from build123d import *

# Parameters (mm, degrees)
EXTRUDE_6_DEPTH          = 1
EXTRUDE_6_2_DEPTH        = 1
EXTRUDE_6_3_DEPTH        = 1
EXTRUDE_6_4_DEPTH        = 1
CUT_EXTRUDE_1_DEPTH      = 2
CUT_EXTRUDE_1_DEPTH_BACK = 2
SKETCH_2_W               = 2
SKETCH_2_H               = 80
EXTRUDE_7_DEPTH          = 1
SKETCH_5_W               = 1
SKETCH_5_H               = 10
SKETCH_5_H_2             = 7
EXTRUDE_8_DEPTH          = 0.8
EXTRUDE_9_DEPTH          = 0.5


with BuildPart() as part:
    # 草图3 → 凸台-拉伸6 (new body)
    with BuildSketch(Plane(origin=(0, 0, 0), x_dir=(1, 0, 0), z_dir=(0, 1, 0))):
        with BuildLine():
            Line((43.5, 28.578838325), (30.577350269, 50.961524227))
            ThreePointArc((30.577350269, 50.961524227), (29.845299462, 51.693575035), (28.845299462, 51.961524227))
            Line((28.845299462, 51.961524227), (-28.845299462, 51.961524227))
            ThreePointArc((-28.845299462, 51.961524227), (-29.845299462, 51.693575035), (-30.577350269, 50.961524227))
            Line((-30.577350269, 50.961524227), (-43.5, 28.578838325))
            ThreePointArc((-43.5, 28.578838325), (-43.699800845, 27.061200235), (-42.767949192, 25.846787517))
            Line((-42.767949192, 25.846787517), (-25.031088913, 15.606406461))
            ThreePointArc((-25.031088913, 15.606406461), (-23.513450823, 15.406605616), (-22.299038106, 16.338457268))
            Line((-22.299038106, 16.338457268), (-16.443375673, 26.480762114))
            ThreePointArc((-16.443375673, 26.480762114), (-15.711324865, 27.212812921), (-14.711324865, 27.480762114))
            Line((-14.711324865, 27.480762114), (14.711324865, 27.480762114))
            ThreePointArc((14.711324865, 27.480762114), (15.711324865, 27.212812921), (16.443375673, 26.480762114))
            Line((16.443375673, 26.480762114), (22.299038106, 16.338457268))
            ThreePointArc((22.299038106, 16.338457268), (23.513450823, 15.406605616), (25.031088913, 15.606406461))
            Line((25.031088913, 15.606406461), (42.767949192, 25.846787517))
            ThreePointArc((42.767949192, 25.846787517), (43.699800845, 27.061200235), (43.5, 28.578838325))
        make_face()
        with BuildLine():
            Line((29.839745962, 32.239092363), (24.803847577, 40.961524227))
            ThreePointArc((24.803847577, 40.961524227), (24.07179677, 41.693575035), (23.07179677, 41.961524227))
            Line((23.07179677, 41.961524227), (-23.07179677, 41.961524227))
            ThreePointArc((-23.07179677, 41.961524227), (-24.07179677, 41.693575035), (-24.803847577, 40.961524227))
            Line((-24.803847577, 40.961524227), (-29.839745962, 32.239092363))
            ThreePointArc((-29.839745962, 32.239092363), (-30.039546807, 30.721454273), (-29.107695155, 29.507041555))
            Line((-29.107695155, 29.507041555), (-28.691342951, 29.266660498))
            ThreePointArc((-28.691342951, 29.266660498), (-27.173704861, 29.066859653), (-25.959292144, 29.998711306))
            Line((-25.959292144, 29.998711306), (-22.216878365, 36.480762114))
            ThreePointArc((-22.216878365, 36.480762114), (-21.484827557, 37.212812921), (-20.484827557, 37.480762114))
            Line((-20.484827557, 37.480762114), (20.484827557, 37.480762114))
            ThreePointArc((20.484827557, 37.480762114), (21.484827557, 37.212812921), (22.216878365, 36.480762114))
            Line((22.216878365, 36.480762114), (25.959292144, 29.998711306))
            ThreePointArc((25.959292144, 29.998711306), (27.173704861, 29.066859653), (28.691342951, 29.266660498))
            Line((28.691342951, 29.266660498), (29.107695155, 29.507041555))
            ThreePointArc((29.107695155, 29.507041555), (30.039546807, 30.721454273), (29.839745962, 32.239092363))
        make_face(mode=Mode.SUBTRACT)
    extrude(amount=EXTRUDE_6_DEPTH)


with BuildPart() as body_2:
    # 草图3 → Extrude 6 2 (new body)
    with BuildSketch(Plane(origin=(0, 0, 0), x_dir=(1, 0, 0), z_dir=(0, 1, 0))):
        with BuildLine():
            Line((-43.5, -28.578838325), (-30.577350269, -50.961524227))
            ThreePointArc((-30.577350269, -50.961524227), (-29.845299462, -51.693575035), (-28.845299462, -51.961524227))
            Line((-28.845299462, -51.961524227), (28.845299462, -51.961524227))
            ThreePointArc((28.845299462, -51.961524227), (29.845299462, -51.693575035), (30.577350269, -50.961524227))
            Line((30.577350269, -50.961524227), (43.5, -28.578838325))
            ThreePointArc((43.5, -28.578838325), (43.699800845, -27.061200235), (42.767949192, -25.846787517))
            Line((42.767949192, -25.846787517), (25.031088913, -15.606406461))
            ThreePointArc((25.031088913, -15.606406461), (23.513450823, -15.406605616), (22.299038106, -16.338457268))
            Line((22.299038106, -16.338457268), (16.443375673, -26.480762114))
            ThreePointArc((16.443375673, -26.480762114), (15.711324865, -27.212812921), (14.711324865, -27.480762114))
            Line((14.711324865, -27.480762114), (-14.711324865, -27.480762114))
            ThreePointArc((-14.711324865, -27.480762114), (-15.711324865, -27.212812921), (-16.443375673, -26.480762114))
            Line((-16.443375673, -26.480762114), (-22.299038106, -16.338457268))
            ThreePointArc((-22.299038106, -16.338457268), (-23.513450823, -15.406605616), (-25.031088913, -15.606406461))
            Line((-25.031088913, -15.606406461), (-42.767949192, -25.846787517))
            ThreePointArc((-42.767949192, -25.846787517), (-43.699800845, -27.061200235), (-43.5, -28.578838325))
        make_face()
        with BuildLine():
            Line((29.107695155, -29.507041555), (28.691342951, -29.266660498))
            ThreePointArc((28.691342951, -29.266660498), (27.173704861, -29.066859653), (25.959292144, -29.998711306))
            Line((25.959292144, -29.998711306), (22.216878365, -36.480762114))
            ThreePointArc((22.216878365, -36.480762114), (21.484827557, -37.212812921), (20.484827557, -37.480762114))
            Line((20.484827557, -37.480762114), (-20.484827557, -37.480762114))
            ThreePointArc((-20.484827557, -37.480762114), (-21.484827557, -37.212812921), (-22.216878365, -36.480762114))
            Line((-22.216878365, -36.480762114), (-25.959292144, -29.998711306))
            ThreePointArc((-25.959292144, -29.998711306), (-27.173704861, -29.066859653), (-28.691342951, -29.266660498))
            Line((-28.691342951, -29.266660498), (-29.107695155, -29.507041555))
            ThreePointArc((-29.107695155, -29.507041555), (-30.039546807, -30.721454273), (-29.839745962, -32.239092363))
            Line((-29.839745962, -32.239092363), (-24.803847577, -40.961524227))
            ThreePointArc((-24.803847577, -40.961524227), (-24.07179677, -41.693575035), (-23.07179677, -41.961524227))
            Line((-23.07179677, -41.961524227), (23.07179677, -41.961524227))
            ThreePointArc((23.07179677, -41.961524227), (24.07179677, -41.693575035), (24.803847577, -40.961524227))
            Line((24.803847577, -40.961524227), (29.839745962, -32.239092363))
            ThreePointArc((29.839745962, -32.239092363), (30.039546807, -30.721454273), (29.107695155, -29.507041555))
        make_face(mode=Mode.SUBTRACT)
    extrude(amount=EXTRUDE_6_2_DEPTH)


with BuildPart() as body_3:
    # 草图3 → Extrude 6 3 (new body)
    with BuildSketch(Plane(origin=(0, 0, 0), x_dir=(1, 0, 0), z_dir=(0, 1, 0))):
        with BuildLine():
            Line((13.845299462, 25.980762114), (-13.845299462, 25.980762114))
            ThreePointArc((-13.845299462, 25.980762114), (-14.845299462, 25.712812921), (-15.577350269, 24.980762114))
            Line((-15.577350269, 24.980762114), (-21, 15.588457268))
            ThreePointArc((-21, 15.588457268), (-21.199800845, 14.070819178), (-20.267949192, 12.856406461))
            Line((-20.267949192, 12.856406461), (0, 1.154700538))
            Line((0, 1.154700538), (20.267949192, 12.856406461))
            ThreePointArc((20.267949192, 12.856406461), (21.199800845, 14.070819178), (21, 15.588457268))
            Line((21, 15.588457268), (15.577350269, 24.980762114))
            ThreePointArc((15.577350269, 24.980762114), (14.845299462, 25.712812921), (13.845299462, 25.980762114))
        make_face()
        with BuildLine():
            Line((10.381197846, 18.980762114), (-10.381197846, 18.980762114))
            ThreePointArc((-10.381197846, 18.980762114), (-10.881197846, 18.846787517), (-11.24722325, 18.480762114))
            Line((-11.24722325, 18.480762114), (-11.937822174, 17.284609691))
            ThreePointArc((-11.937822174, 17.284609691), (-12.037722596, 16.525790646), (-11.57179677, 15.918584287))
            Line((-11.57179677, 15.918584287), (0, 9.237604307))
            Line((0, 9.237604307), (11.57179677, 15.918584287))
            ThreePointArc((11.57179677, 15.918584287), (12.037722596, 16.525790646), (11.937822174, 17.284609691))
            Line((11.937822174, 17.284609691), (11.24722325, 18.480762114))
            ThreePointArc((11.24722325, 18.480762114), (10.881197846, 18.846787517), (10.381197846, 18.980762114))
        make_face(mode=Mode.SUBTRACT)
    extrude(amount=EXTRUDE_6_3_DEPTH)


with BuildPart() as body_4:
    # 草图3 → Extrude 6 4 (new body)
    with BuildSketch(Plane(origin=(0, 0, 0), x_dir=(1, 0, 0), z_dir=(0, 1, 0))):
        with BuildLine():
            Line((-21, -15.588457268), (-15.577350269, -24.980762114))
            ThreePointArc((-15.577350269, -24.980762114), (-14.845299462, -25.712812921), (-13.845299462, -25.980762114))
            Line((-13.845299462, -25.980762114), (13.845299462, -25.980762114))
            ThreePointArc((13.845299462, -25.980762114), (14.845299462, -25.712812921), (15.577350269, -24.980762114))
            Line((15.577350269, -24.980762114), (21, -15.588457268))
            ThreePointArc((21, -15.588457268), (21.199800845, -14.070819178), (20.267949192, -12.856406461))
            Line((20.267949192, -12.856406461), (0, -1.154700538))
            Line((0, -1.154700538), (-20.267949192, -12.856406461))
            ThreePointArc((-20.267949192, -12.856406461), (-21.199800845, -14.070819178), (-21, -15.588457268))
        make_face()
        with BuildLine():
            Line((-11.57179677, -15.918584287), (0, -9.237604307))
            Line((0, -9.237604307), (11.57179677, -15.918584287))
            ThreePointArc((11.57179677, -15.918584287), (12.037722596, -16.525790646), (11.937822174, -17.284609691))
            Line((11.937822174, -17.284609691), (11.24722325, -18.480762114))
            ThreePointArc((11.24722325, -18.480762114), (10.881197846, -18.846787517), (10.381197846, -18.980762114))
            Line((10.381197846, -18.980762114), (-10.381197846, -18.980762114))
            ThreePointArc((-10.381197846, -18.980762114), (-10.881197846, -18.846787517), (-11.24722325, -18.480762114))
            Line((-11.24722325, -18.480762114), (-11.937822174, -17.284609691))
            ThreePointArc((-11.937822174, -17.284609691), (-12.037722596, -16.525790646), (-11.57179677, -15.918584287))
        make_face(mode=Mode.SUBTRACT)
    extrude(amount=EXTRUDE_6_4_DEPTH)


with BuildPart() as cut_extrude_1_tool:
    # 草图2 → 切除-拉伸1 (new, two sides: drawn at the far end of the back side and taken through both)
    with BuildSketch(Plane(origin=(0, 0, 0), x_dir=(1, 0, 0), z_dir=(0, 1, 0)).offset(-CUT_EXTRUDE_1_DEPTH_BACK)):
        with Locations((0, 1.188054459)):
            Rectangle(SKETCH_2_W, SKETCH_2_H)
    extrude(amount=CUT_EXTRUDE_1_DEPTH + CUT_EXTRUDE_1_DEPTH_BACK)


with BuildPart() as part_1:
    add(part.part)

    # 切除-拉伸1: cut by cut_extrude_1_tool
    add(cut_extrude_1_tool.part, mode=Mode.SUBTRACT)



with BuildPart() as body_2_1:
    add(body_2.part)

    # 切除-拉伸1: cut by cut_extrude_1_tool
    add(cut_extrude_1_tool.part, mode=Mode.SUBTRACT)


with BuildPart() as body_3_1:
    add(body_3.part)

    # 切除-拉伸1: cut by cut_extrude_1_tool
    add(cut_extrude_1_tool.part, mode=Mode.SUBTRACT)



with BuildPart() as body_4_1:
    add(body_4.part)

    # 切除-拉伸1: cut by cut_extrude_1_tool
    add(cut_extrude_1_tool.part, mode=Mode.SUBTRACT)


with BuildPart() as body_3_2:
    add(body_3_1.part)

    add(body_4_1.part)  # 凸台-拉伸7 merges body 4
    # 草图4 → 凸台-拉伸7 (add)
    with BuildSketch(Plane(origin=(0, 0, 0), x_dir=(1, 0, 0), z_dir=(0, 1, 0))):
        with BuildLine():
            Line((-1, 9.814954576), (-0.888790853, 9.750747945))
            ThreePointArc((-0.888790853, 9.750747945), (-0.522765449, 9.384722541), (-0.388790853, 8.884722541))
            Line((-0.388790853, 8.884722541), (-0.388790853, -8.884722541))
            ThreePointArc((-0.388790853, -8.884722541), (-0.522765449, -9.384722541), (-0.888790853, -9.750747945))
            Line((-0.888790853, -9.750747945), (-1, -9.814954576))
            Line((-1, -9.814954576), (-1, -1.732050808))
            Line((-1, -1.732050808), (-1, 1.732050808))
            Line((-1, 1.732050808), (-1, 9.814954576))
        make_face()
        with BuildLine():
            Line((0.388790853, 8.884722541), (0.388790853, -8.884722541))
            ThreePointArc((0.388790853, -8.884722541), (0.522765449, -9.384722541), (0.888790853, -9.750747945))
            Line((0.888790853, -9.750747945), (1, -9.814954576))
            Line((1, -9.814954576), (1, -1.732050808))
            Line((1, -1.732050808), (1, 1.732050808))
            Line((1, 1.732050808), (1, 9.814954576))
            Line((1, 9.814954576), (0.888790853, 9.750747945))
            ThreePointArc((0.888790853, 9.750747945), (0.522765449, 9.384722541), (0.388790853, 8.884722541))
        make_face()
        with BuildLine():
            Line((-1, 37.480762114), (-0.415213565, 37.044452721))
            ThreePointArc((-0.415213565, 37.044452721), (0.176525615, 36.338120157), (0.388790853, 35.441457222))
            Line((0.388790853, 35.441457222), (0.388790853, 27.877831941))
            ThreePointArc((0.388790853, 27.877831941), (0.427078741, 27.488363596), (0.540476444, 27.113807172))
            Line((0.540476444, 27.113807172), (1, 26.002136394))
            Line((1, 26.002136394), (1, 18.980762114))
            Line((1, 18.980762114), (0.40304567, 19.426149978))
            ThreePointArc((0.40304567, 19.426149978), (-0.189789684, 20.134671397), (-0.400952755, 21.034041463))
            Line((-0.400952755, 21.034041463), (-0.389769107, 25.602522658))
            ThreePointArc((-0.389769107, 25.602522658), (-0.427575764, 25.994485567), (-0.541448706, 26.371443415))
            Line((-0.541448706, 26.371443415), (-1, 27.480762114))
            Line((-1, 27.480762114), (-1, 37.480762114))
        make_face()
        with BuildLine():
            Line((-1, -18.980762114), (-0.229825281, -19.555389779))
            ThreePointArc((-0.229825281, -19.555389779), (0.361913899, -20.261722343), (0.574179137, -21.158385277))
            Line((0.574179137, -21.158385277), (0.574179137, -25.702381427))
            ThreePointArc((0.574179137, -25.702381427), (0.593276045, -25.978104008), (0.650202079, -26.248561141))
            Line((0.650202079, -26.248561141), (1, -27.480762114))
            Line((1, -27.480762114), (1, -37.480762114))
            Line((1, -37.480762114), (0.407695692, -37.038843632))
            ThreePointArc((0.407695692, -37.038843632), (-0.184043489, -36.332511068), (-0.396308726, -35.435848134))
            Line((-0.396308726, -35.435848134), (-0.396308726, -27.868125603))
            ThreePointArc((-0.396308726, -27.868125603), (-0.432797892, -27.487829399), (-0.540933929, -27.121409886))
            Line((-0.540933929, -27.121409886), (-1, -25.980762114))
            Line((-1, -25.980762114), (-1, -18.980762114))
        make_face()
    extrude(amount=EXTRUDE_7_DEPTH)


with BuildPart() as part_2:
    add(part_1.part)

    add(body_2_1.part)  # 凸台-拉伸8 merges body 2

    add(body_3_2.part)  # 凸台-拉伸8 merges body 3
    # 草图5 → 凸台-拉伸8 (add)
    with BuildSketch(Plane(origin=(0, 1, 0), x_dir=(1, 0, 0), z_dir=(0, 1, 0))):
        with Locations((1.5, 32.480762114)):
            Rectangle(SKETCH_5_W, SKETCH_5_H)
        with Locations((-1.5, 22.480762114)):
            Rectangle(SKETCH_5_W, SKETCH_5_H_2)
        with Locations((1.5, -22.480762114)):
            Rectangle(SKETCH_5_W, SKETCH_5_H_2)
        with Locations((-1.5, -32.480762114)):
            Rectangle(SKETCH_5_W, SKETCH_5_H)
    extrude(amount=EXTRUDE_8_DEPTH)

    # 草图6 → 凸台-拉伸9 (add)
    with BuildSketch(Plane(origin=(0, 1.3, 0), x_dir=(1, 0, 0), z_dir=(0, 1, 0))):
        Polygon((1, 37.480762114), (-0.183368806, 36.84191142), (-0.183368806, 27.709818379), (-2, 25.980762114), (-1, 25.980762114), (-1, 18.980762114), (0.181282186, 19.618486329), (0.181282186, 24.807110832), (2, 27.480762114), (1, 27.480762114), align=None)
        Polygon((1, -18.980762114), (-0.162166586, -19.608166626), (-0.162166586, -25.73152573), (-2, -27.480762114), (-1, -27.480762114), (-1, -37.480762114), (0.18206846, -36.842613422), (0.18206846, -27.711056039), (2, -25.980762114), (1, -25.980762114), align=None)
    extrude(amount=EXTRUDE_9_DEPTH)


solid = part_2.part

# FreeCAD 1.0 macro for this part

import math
import FreeCAD as App
import Part
import Sketcher

V = App.Vector
Q = App.Units.Quantity

doc = App.newDocument("Part")
body = doc.addObject("PartDesign::Body", "Body")

sketch1 = body.newObject("Sketcher::SketchObject", "Sketch")
sketch1.AttachmentSupport = (doc.getObject("XZ_Plane"), [""])
sketch1.MapMode = "FlatFace"
sketch1.addGeometry([
    Part.LineSegment(V(43.5, -28.58, 0), V(30.58, -50.96, 0)),
    Part.ArcOfCircle(Part.Circle(V(28.85, -49.96, 0), V(0, 0, 1), 2), math.radians(-90), math.radians(-30)),
    Part.LineSegment(V(28.85, -51.96, 0), V(-28.85, -51.96, 0)),
    Part.ArcOfCircle(Part.Circle(V(-28.85, -49.96, 0), V(0, 0, 1), 2), math.radians(-150), math.radians(-90)),
    Part.LineSegment(V(-30.58, -50.96, 0), V(-43.5, -28.58, 0)),
    Part.ArcOfCircle(Part.Circle(V(-41.77, -27.58, 0), V(0, 0, 1), 2), math.radians(120), math.radians(210)),
    Part.LineSegment(V(-42.77, -25.85, 0), V(-25.03, -15.61, 0)),
    Part.ArcOfCircle(Part.Circle(V(-24.03, -17.34, 0), V(0, 0, 1), 2), math.radians(30), math.radians(120)),
    Part.LineSegment(V(-22.3, -16.34, 0), V(-16.44, -26.48, 0)),
    Part.ArcOfCircle(Part.Circle(V(-14.71, -25.48, 0), V(0, 0, 1), 2), math.radians(-150), math.radians(-90)),
    Part.LineSegment(V(-14.71, -27.48, 0), V(14.71, -27.48, 0)),
    Part.ArcOfCircle(Part.Circle(V(14.71, -25.48, 0), V(0, 0, 1), 2), math.radians(-90), math.radians(-30)),
    Part.LineSegment(V(16.44, -26.48, 0), V(22.3, -16.34, 0)),
    Part.ArcOfCircle(Part.Circle(V(24.03, -17.34, 0), V(0, 0, 1), 2), math.radians(60), math.radians(150)),
    Part.LineSegment(V(25.03, -15.61, 0), V(42.77, -25.85, 0)),
    Part.ArcOfCircle(Part.Circle(V(41.77, -27.58, 0), V(0, 0, 1), 2), math.radians(-30), math.radians(60)),
    Part.LineSegment(V(24.8, -40.96, 0), V(29.84, -32.24, 0)),
    Part.ArcOfCircle(Part.Circle(V(28.11, -31.24, 0), V(0, 0, 1), 2), math.radians(-30), math.radians(60)),
    Part.LineSegment(V(29.11, -29.51, 0), V(28.69, -29.27, 0)),
    Part.ArcOfCircle(Part.Circle(V(27.69, -31, 0), V(0, 0, 1), 2), math.radians(60), math.radians(150)),
    Part.LineSegment(V(25.96, -30, 0), V(22.22, -36.48, 0)),
    Part.ArcOfCircle(Part.Circle(V(20.48, -35.48, 0), V(0, 0, 1), 2), math.radians(-90), math.radians(-30)),
    Part.LineSegment(V(20.48, -37.48, 0), V(-20.48, -37.48, 0)),
    Part.ArcOfCircle(Part.Circle(V(-20.48, -35.48, 0), V(0, 0, 1), 2), math.radians(-150), math.radians(-90)),
    Part.LineSegment(V(-22.22, -36.48, 0), V(-25.96, -30, 0)),
    Part.ArcOfCircle(Part.Circle(V(-27.69, -31, 0), V(0, 0, 1), 2), math.radians(30), math.radians(120)),
    Part.LineSegment(V(-28.69, -29.27, 0), V(-29.11, -29.51, 0)),
    Part.ArcOfCircle(Part.Circle(V(-28.11, -31.24, 0), V(0, 0, 1), 2), math.radians(120), math.radians(210)),
    Part.LineSegment(V(-29.84, -32.24, 0), V(-24.8, -40.96, 0)),
    Part.ArcOfCircle(Part.Circle(V(-23.07, -39.96, 0), V(0, 0, 1), 2), math.radians(-150), math.radians(-90)),
    Part.LineSegment(V(-23.07, -41.96, 0), V(23.07, -41.96, 0)),
    Part.ArcOfCircle(Part.Circle(V(23.07, -39.96, 0), V(0, 0, 1), 2), math.radians(-90), math.radians(-30)),
], False)
sketch1.addConstraint([
    Sketcher.Constraint("Tangent", 0, 2, 1, 2),
    Sketcher.Constraint("Tangent", 1, 1, 2, 1),
    Sketcher.Constraint("Tangent", 2, 2, 3, 2),
    Sketcher.Constraint("Tangent", 3, 1, 4, 1),
    Sketcher.Constraint("Tangent", 4, 2, 5, 2),
    Sketcher.Constraint("Tangent", 5, 1, 6, 1),
    Sketcher.Constraint("Tangent", 6, 2, 7, 2),
    Sketcher.Constraint("Tangent", 7, 1, 8, 1),
    Sketcher.Constraint("Tangent", 8, 2, 9, 1),
    Sketcher.Constraint("Tangent", 9, 2, 10, 1),
    Sketcher.Constraint("Tangent", 10, 2, 11, 1),
    Sketcher.Constraint("Tangent", 11, 2, 12, 1),
    Sketcher.Constraint("Tangent", 12, 2, 13, 2),
    Sketcher.Constraint("Tangent", 13, 1, 14, 1),
    Sketcher.Constraint("Tangent", 14, 2, 15, 2),
    Sketcher.Constraint("Tangent", 15, 1, 0, 1),
    Sketcher.Constraint("Tangent", 16, 2, 17, 1),
    Sketcher.Constraint("Tangent", 17, 2, 18, 1),
    Sketcher.Constraint("Tangent", 18, 2, 19, 1),
    Sketcher.Constraint("Tangent", 19, 2, 20, 1),
    Sketcher.Constraint("Tangent", 20, 2, 21, 2),
    Sketcher.Constraint("Tangent", 21, 1, 22, 1),
    Sketcher.Constraint("Tangent", 22, 2, 23, 2),
    Sketcher.Constraint("Tangent", 23, 1, 24, 1),
    Sketcher.Constraint("Tangent", 24, 2, 25, 1),
    Sketcher.Constraint("Tangent", 25, 2, 26, 1),
    Sketcher.Constraint("Tangent", 26, 2, 27, 1),
    Sketcher.Constraint("Tangent", 27, 2, 28, 1),
    Sketcher.Constraint("Tangent", 28, 2, 29, 1),
    Sketcher.Constraint("Tangent", 29, 2, 30, 1),
    Sketcher.Constraint("Tangent", 30, 2, 31, 1),
    Sketcher.Constraint("Tangent", 31, 2, 16, 1),
    Sketcher.Constraint("Horizontal", 2),
    Sketcher.Constraint("Horizontal", 10),
    Sketcher.Constraint("Horizontal", 22),
    Sketcher.Constraint("Horizontal", 30),
    Sketcher.Constraint("Equal", 1, 3),
    Sketcher.Constraint("Equal", 3, 5),
    Sketcher.Constraint("Equal", 5, 7),
    Sketcher.Constraint("Equal", 7, 9),
    Sketcher.Constraint("Equal", 9, 11),
    Sketcher.Constraint("Equal", 11, 13),
    Sketcher.Constraint("Equal", 13, 15),
    Sketcher.Constraint("Equal", 15, 17),
    Sketcher.Constraint("Equal", 17, 19),
    Sketcher.Constraint("Equal", 19, 21),
    Sketcher.Constraint("Equal", 21, 23),
    Sketcher.Constraint("Equal", 23, 25),
    Sketcher.Constraint("Equal", 25, 27),
    Sketcher.Constraint("Equal", 27, 29),
    Sketcher.Constraint("Equal", 29, 31),
    Sketcher.Constraint("Symmetric", 7, 3, 13, 3, -2),
    Sketcher.Constraint("Symmetric", 5, 3, 15, 3, -2),
    Sketcher.Constraint("Symmetric", 19, 3, 25, 3, -2),
    Sketcher.Constraint("Symmetric", 17, 3, 27, 3, -2),
    Sketcher.Constraint("Perpendicular", 4, 6),
    Sketcher.Constraint("Perpendicular", 6, 8),
    Sketcher.Constraint("Parallel", 0, 12),
    Sketcher.Constraint("Perpendicular", 12, 14),
    Sketcher.Constraint("Perpendicular", 14, 16),
    Sketcher.Constraint("Perpendicular", 16, 18),
    Sketcher.Constraint("Perpendicular", 18, 20),
    Sketcher.Constraint("Parallel", 8, 24),
    Sketcher.Constraint("Perpendicular", 26, 28),
    Sketcher.Constraint("Radius", 1, 2.0),
    Sketcher.Constraint("Angle", 0, Q("-120 deg")),
    Sketcher.Constraint("DistanceY", 21, 3, 11, 3, 10.0),
    Sketcher.Constraint("DistanceY", 3, 3, 29, 3, 10.0),
    Sketcher.Constraint("DistanceX", 4, 2, -1, 1, 43.5),
    Sketcher.Constraint("DistanceX", 2, 2, 2, 1, 57.690599),
    Sketcher.Constraint("DistanceX", 10, 1, 10, 2, 29.42265),
    Sketcher.Constraint("DistanceX", 27, 3, 29, 3, 5.035898),
    Sketcher.Constraint("DistanceY", 21, 3, 18, 2, 6.214102),
    Sketcher.Constraint("DistanceX", 22, 2, 22, 1, 40.969655),
    Sketcher.Constraint("DistanceX", 30, 1, 30, 2, 46.143594),
    Sketcher.Constraint("DistanceY", 5, 3, -1, 1, 27.578838),
])
pad1 = body.newObject("PartDesign::Pad", "Pad")
pad1.Profile = sketch1
pad1.Length = 1
pad1.Reversed = True
body2 = doc.addObject("PartDesign::Body", "Body001")

sketch2 = body2.newObject("Sketcher::SketchObject", "Sketch001")
sketch2.AttachmentSupport = (doc.getObject("XZ_Plane001"), [""])
sketch2.MapMode = "FlatFace"
sketch2.addGeometry([
    Part.LineSegment(V(-43.5, 28.58, 0), V(-30.58, 50.96, 0)),
    Part.ArcOfCircle(Part.Circle(V(-28.85, 49.96, 0), V(0, 0, 1), 2), math.radians(90), math.radians(150)),
    Part.LineSegment(V(-28.85, 51.96, 0), V(28.85, 51.96, 0)),
    Part.ArcOfCircle(Part.Circle(V(28.85, 49.96, 0), V(0, 0, 1), 2), math.radians(30), math.radians(90)),
    Part.LineSegment(V(30.58, 50.96, 0), V(43.5, 28.58, 0)),
    Part.ArcOfCircle(Part.Circle(V(41.77, 27.58, 0), V(0, 0, 1), 2), math.radians(-60), math.radians(30)),
    Part.LineSegment(V(42.77, 25.85, 0), V(25.03, 15.61, 0)),
    Part.ArcOfCircle(Part.Circle(V(24.03, 17.34, 0), V(0, 0, 1), 2), math.radians(-150), math.radians(-60)),
    Part.LineSegment(V(22.3, 16.34, 0), V(16.44, 26.48, 0)),
    Part.ArcOfCircle(Part.Circle(V(14.71, 25.48, 0), V(0, 0, 1), 2), math.radians(30), math.radians(90)),
    Part.LineSegment(V(14.71, 27.48, 0), V(-14.71, 27.48, 0)),
    Part.ArcOfCircle(Part.Circle(V(-14.71, 25.48, 0), V(0, 0, 1), 2), math.radians(90), math.radians(150)),
    Part.LineSegment(V(-16.44, 26.48, 0), V(-22.3, 16.34, 0)),
    Part.ArcOfCircle(Part.Circle(V(-24.03, 17.34, 0), V(0, 0, 1), 2), math.radians(-120), math.radians(-30)),
    Part.LineSegment(V(-25.03, 15.61, 0), V(-42.77, 25.85, 0)),
    Part.ArcOfCircle(Part.Circle(V(-41.77, 27.58, 0), V(0, 0, 1), 2), math.radians(150), math.radians(240)),
    Part.LineSegment(V(28.69, 29.27, 0), V(29.11, 29.51, 0)),
    Part.ArcOfCircle(Part.Circle(V(28.11, 31.24, 0), V(0, 0, 1), 2), math.radians(-60), math.radians(30)),
    Part.LineSegment(V(29.84, 32.24, 0), V(24.8, 40.96, 0)),
    Part.ArcOfCircle(Part.Circle(V(23.07, 39.96, 0), V(0, 0, 1), 2), math.radians(30), math.radians(90)),
    Part.LineSegment(V(23.07, 41.96, 0), V(-23.07, 41.96, 0)),
    Part.ArcOfCircle(Part.Circle(V(-23.07, 39.96, 0), V(0, 0, 1), 2), math.radians(90), math.radians(150)),
    Part.LineSegment(V(-24.8, 40.96, 0), V(-29.84, 32.24, 0)),
    Part.ArcOfCircle(Part.Circle(V(-28.11, 31.24, 0), V(0, 0, 1), 2), math.radians(150), math.radians(240)),
    Part.LineSegment(V(-29.11, 29.51, 0), V(-28.69, 29.27, 0)),
    Part.ArcOfCircle(Part.Circle(V(-27.69, 31, 0), V(0, 0, 1), 2), math.radians(-120), math.radians(-30)),
    Part.LineSegment(V(-25.96, 30, 0), V(-22.22, 36.48, 0)),
    Part.ArcOfCircle(Part.Circle(V(-20.48, 35.48, 0), V(0, 0, 1), 2), math.radians(90), math.radians(150)),
    Part.LineSegment(V(-20.48, 37.48, 0), V(20.48, 37.48, 0)),
    Part.ArcOfCircle(Part.Circle(V(20.48, 35.48, 0), V(0, 0, 1), 2), math.radians(30), math.radians(90)),
    Part.LineSegment(V(22.22, 36.48, 0), V(25.96, 30, 0)),
    Part.ArcOfCircle(Part.Circle(V(27.69, 31, 0), V(0, 0, 1), 2), math.radians(-150), math.radians(-60)),
], False)
sketch2.addConstraint([
    Sketcher.Constraint("Tangent", 0, 2, 1, 2),
    Sketcher.Constraint("Tangent", 1, 1, 2, 1),
    Sketcher.Constraint("Tangent", 2, 2, 3, 2),
    Sketcher.Constraint("Tangent", 3, 1, 4, 1),
    Sketcher.Constraint("Tangent", 4, 2, 5, 2),
    Sketcher.Constraint("Tangent", 5, 1, 6, 1),
    Sketcher.Constraint("Tangent", 6, 2, 7, 2),
    Sketcher.Constraint("Tangent", 7, 1, 8, 1),
    Sketcher.Constraint("Tangent", 8, 2, 9, 1),
    Sketcher.Constraint("Tangent", 9, 2, 10, 1),
    Sketcher.Constraint("Tangent", 10, 2, 11, 1),
    Sketcher.Constraint("Tangent", 11, 2, 12, 1),
    Sketcher.Constraint("Tangent", 12, 2, 13, 2),
    Sketcher.Constraint("Tangent", 13, 1, 14, 1),
    Sketcher.Constraint("Tangent", 14, 2, 15, 2),
    Sketcher.Constraint("Tangent", 15, 1, 0, 1),
    Sketcher.Constraint("Tangent", 16, 2, 17, 1),
    Sketcher.Constraint("Tangent", 17, 2, 18, 1),
    Sketcher.Constraint("Tangent", 18, 2, 19, 1),
    Sketcher.Constraint("Tangent", 19, 2, 20, 1),
    Sketcher.Constraint("Tangent", 20, 2, 21, 1),
    Sketcher.Constraint("Tangent", 21, 2, 22, 1),
    Sketcher.Constraint("Tangent", 22, 2, 23, 1),
    Sketcher.Constraint("Tangent", 23, 2, 24, 1),
    Sketcher.Constraint("Tangent", 24, 2, 25, 1),
    Sketcher.Constraint("Tangent", 25, 2, 26, 1),
    Sketcher.Constraint("Tangent", 26, 2, 27, 2),
    Sketcher.Constraint("Tangent", 27, 1, 28, 1),
    Sketcher.Constraint("Tangent", 28, 2, 29, 2),
    Sketcher.Constraint("Tangent", 29, 1, 30, 1),
    Sketcher.Constraint("Tangent", 30, 2, 31, 1),
    Sketcher.Constraint("Tangent", 31, 2, 16, 1),
    Sketcher.Constraint("Horizontal", 2),
    Sketcher.Constraint("Horizontal", 10),
    Sketcher.Constraint("Horizontal", 20),
    Sketcher.Constraint("Horizontal", 28),
    Sketcher.Constraint("Equal", 1, 3),
    Sketcher.Constraint("Equal", 3, 5),
    Sketcher.Constraint("Equal", 5, 7),
    Sketcher.Constraint("Equal", 7, 9),
    Sketcher.Constraint("Equal", 9, 11),
    Sketcher.Constraint("Equal", 11, 13),
    Sketcher.Constraint("Equal", 13, 15),
    Sketcher.Constraint("Equal", 15, 17),
    Sketcher.Constraint("Equal", 17, 19),
    Sketcher.Constraint("Equal", 19, 21),
    Sketcher.Constraint("Equal", 21, 23),
    Sketcher.Constraint("Equal", 23, 25),
    Sketcher.Constraint("Equal", 25, 27),
    Sketcher.Constraint("Equal", 27, 29),
    Sketcher.Constraint("Equal", 29, 31),
    Sketcher.Constraint("Symmetric", 7, 3, 13, 3, -2),
    Sketcher.Constraint("Symmetric", 5, 3, 15, 3, -2),
    Sketcher.Constraint("Symmetric", 17, 3, 23, 3, -2),
    Sketcher.Constraint("Symmetric", 25, 3, 31, 3, -2),
    Sketcher.Constraint("Perpendicular", 4, 6),
    Sketcher.Constraint("Perpendicular", 6, 8),
    Sketcher.Constraint("Parallel", 0, 12),
    Sketcher.Constraint("Perpendicular", 12, 14),
    Sketcher.Constraint("Perpendicular", 8, 16),
    Sketcher.Constraint("Perpendicular", 16, 18),
    Sketcher.Constraint("Perpendicular", 14, 22),
    Sketcher.Constraint("Perpendicular", 24, 26),
    Sketcher.Constraint("Parallel", 18, 30),
    Sketcher.Constraint("Radius", 1, 2.0),
    Sketcher.Constraint("Angle", 0, Q("60 deg")),
    Sketcher.Constraint("DistanceY", 19, 3, 3, 3, 10.0),
    Sketcher.Constraint("DistanceY", 11, 3, 27, 3, 10.0),
    Sketcher.Constraint("DistanceX", -1, 1, 4, 2, 43.5),
    Sketcher.Constraint("DistanceX", 2, 1, 2, 2, 57.690599),
    Sketcher.Constraint("DistanceX", 10, 2, 10, 1, 29.42265),
    Sketcher.Constraint("DistanceX", 19, 3, 17, 3, 5.035898),
    Sketcher.Constraint("DistanceY", 24, 2, 27, 3, 6.214102),
    Sketcher.Constraint("DistanceX", 20, 2, 20, 1, 46.143594),
    Sketcher.Constraint("DistanceX", 28, 1, 28, 2, 40.969655),
    Sketcher.Constraint("DistanceY", -1, 1, 5, 3, 27.578838),
])
pad2 = body2.newObject("PartDesign::Pad", "Pad001")
pad2.Profile = sketch2
pad2.Length = 1
pad2.Reversed = True
body3 = doc.addObject("PartDesign::Body", "Body002")

sketch3 = body3.newObject("Sketcher::SketchObject", "Sketch002")
sketch3.AttachmentSupport = (doc.getObject("XZ_Plane002"), [""])
sketch3.MapMode = "FlatFace"
sketch3.addGeometry([
    Part.LineSegment(V(13.8, -26, 0), V(-13.8, -26, 0)),
    Part.ArcOfCircle(Part.Circle(V(-13.8, -24, 0), V(0, 0, 1), 2), math.radians(-150), math.radians(-90)),
    Part.LineSegment(V(-15.6, -25, 0), V(-21, -15.6, 0)),
    Part.ArcOfCircle(Part.Circle(V(-19.3, -14.6, 0), V(0, 0, 1), 2), math.radians(120), math.radians(210)),
    Part.LineSegment(V(-20.3, -12.9, 0), V(0, -1.2, 0)),
    Part.LineSegment(V(0, -1.2, 0), V(20.3, -12.9, 0)),
    Part.ArcOfCircle(Part.Circle(V(19.3, -14.6, 0), V(0, 0, 1), 2), math.radians(-30), math.radians(60)),
    Part.LineSegment(V(21, -15.6, 0), V(15.6, -25, 0)),
    Part.ArcOfCircle(Part.Circle(V(13.8, -24, 0), V(0, 0, 1), 2), math.radians(-90), math.radians(-30)),
    Part.LineSegment(V(-10.4, -19, 0), V(10.4, -19, 0)),
    Part.ArcOfCircle(Part.Circle(V(10.4, -18, 0), V(0, 0, 1), 1), math.radians(-90), math.radians(-30)),
    Part.LineSegment(V(11.2, -18.5, 0), V(11.9, -17.3, 0)),
    Part.ArcOfCircle(Part.Circle(V(11.1, -16.8, 0), V(0, 0, 1), 1), math.radians(-30), math.radians(60)),
    Part.LineSegment(V(11.6, -15.9, 0), V(0, -9.2, 0)),
    Part.LineSegment(V(0, -9.2, 0), V(-11.6, -15.9, 0)),
    Part.ArcOfCircle(Part.Circle(V(-11.1, -16.8, 0), V(0, 0, 1), 1), math.radians(120), math.radians(210)),
    Part.LineSegment(V(-11.9, -17.3, 0), V(-11.2, -18.5, 0)),
    Part.ArcOfCircle(Part.Circle(V(-10.4, -18, 0), V(0, 0, 1), 1), math.radians(-150), math.radians(-90)),
], False)
sketch3.addConstraint([
    Sketcher.Constraint("Tangent", 0, 2, 1, 2),
    Sketcher.Constraint("Tangent", 1, 1, 2, 1),
    Sketcher.Constraint("Tangent", 2, 2, 3, 2),
    Sketcher.Constraint("Tangent", 3, 1, 4, 1),
    Sketcher.Constraint("Coincident", 4, 2, 5, 1),
    Sketcher.Constraint("Tangent", 5, 2, 6, 2),
    Sketcher.Constraint("Tangent", 6, 1, 7, 1),
    Sketcher.Constraint("Tangent", 7, 2, 8, 2),
    Sketcher.Constraint("Tangent", 8, 1, 0, 1),
    Sketcher.Constraint("Tangent", 9, 2, 10, 1),
    Sketcher.Constraint("Tangent", 10, 2, 11, 1),
    Sketcher.Constraint("Tangent", 11, 2, 12, 1),
    Sketcher.Constraint("Tangent", 12, 2, 13, 1),
    Sketcher.Constraint("Coincident", 13, 2, 14, 1),
    Sketcher.Constraint("Tangent", 14, 2, 15, 1),
    Sketcher.Constraint("Tangent", 15, 2, 16, 1),
    Sketcher.Constraint("Tangent", 16, 2, 17, 1),
    Sketcher.Constraint("Tangent", 17, 2, 9, 1),
    Sketcher.Constraint("Horizontal", 0),
    Sketcher.Constraint("Horizontal", 9),
    Sketcher.Constraint("Equal", 1, 3),
    Sketcher.Constraint("Equal", 3, 6),
    Sketcher.Constraint("Equal", 6, 8),
    Sketcher.Constraint("Equal", 10, 12),
    Sketcher.Constraint("Equal", 12, 15),
    Sketcher.Constraint("Equal", 15, 17),
    Sketcher.Constraint("Symmetric", 3, 3, 6, 3, -2),
    Sketcher.Constraint("Symmetric", 12, 3, 15, 3, -2),
    Sketcher.Constraint("PointOnObject", 4, 2, -2),
    Sketcher.Constraint("PointOnObject", 13, 2, -2),
    Sketcher.Constraint("Perpendicular", 2, 4),
    Sketcher.Constraint("Perpendicular", 5, 7),
    Sketcher.Constraint("Parallel", 7, 11),
    Sketcher.Constraint("Perpendicular", 11, 13),
    Sketcher.Constraint("Perpendicular", 14, 16),
    Sketcher.Constraint("Radius", 1, 2.0),
    Sketcher.Constraint("Radius", 10, 1.0),
    Sketcher.Constraint("Angle", 2, Q("120 deg")),
    Sketcher.Constraint("DistanceX", 2, 2, -1, 1, 21.0),
    Sketcher.Constraint("DistanceY", 8, 3, 10, 3, 6.0),
    Sketcher.Constraint("DistanceX", 0, 2, 0, 1, 27.690599),
    Sketcher.Constraint("DistanceY", 4, 2, -1, 1, 1.154701),
    Sketcher.Constraint("DistanceX", 10, 3, 8, 3, 3.464102),
    Sketcher.Constraint("DistanceX", 10, 3, 12, 3, 0.690599),
])
pad3 = body3.newObject("PartDesign::Pad", "Pad002")
pad3.Profile = sketch3
pad3.Length = 1
pad3.Reversed = True
body4 = doc.addObject("PartDesign::Body", "Body003")

sketch4 = body4.newObject("Sketcher::SketchObject", "Sketch003")
sketch4.AttachmentSupport = (doc.getObject("XZ_Plane003"), [""])
sketch4.MapMode = "FlatFace"
sketch4.addGeometry([
    Part.LineSegment(V(-21, 15.6, 0), V(-15.6, 25, 0)),
    Part.ArcOfCircle(Part.Circle(V(-13.8, 24, 0), V(0, 0, 1), 2), math.radians(90), math.radians(150)),
    Part.LineSegment(V(-13.8, 26, 0), V(13.8, 26, 0)),
    Part.ArcOfCircle(Part.Circle(V(13.8, 24, 0), V(0, 0, 1), 2), math.radians(30), math.radians(90)),
    Part.LineSegment(V(15.6, 25, 0), V(21, 15.6, 0)),
    Part.ArcOfCircle(Part.Circle(V(19.3, 14.6, 0), V(0, 0, 1), 2), math.radians(-60), math.radians(30)),
    Part.LineSegment(V(20.3, 12.9, 0), V(0, 1.2, 0)),
    Part.LineSegment(V(0, 1.2, 0), V(-20.3, 12.9, 0)),
    Part.ArcOfCircle(Part.Circle(V(-19.3, 14.6, 0), V(0, 0, 1), 2), math.radians(150), math.radians(240)),
    Part.ArcOfCircle(Part.Circle(V(-11.1, 16.8, 0), V(0, 0, 1), 1), math.radians(150), math.radians(240)),
    Part.LineSegment(V(-11.6, 15.9, 0), V(0, 9.2, 0)),
    Part.LineSegment(V(0, 9.2, 0), V(11.6, 15.9, 0)),
    Part.ArcOfCircle(Part.Circle(V(11.1, 16.8, 0), V(0, 0, 1), 1), math.radians(-60), math.radians(30)),
    Part.LineSegment(V(11.9, 17.3, 0), V(11.2, 18.5, 0)),
    Part.ArcOfCircle(Part.Circle(V(10.4, 18, 0), V(0, 0, 1), 1), math.radians(30), math.radians(90)),
    Part.LineSegment(V(10.4, 19, 0), V(-10.4, 19, 0)),
    Part.ArcOfCircle(Part.Circle(V(-10.4, 18, 0), V(0, 0, 1), 1), math.radians(90), math.radians(150)),
    Part.LineSegment(V(-11.2, 18.5, 0), V(-11.9, 17.3, 0)),
], False)
sketch4.addConstraint([
    Sketcher.Constraint("Tangent", 0, 2, 1, 2),
    Sketcher.Constraint("Tangent", 1, 1, 2, 1),
    Sketcher.Constraint("Tangent", 2, 2, 3, 2),
    Sketcher.Constraint("Tangent", 3, 1, 4, 1),
    Sketcher.Constraint("Tangent", 4, 2, 5, 2),
    Sketcher.Constraint("Tangent", 5, 1, 6, 1),
    Sketcher.Constraint("Coincident", 6, 2, 7, 1),
    Sketcher.Constraint("Tangent", 7, 2, 8, 2),
    Sketcher.Constraint("Tangent", 8, 1, 0, 1),
    Sketcher.Constraint("Tangent", 9, 2, 10, 1),
    Sketcher.Constraint("Coincident", 10, 2, 11, 1),
    Sketcher.Constraint("Tangent", 11, 2, 12, 1),
    Sketcher.Constraint("Tangent", 12, 2, 13, 1),
    Sketcher.Constraint("Tangent", 13, 2, 14, 1),
    Sketcher.Constraint("Tangent", 14, 2, 15, 1),
    Sketcher.Constraint("Tangent", 15, 2, 16, 1),
    Sketcher.Constraint("Tangent", 16, 2, 17, 1),
    Sketcher.Constraint("Tangent", 17, 2, 9, 1),
    Sketcher.Constraint("Horizontal", 2),
    Sketcher.Constraint("Horizontal", 15),
    Sketcher.Constraint("Equal", 1, 3),
    Sketcher.Constraint("Equal", 3, 5),
    Sketcher.Constraint("Equal", 5, 8),
    Sketcher.Constraint("Equal", 9, 12),
    Sketcher.Constraint("Equal", 12, 14),
    Sketcher.Constraint("Equal", 14, 16),
    Sketcher.Constraint("Symmetric", 5, 3, 8, 3, -2),
    Sketcher.Constraint("Symmetric", 9, 3, 12, 3, -2),
    Sketcher.Constraint("PointOnObject", 6, 2, -2),
    Sketcher.Constraint("PointOnObject", 10, 2, -2),
    Sketcher.Constraint("Perpendicular", 4, 6),
    Sketcher.Constraint("Perpendicular", 0, 7),
    Sketcher.Constraint("Parallel", 7, 10),
    Sketcher.Constraint("Perpendicular", 11, 13),
    Sketcher.Constraint("Perpendicular", 10, 17),
    Sketcher.Constraint("Radius", 1, 2.0),
    Sketcher.Constraint("Radius", 9, 1.0),
    Sketcher.Constraint("Angle", 0, Q("60 deg")),
    Sketcher.Constraint("DistanceX", -1, 1, 4, 2, 21.0),
    Sketcher.Constraint("DistanceY", 14, 3, 3, 3, 6.0),
    Sketcher.Constraint("DistanceX", 2, 1, 2, 2, 27.690599),
    Sketcher.Constraint("DistanceY", -1, 1, 6, 2, 1.154701),
    Sketcher.Constraint("DistanceX", 14, 3, 12, 3, 0.690599),
    Sketcher.Constraint("DistanceX", 14, 3, 3, 3, 3.464102),
])
pad4 = body4.newObject("PartDesign::Pad", "Pad003")
pad4.Profile = sketch4
pad4.Length = 1
pad4.Reversed = True
body5 = doc.addObject("PartDesign::Body", "Body004")

sketch5 = body5.newObject("Sketcher::SketchObject", "Sketch004")
sketch5.AttachmentSupport = (doc.getObject("XZ_Plane004"), [""])
sketch5.MapMode = "FlatFace"
sketch5.addGeometry([
    Part.LineSegment(V(-1, -41.2, 0), V(-1, 38.8, 0)),
    Part.LineSegment(V(-1, 38.8, 0), V(1, 38.8, 0)),
    Part.LineSegment(V(1, 38.8, 0), V(1, -41.2, 0)),
    Part.LineSegment(V(1, -41.2, 0), V(-1, -41.2, 0)),
], False)
sketch5.addConstraint([
    Sketcher.Constraint("Coincident", 0, 2, 1, 1),
    Sketcher.Constraint("Coincident", 1, 2, 2, 1),
    Sketcher.Constraint("Coincident", 2, 2, 3, 1),
    Sketcher.Constraint("Coincident", 3, 2, 0, 1),
    Sketcher.Constraint("Vertical", 0),
    Sketcher.Constraint("Horizontal", 1),
    Sketcher.Constraint("Vertical", 2),
    Sketcher.Constraint("Horizontal", 3),
    Sketcher.Constraint("DistanceX", 1, 1, 1, 2, 2.0),
    Sketcher.Constraint("DistanceY", 0, 1, 0, 2, 80.0),
    Sketcher.Constraint("DistanceX", 0, 2, -1, 1, 1.0),
    Sketcher.Constraint("DistanceY", -1, 1, 0, 2, 38.811946),
])
pad5 = body5.newObject("PartDesign::Pad", "Pad004")
pad5.Profile = sketch5
pad5.Type = "TwoLengths"
pad5.Length = 2
pad5.Length2 = 2
pad5.Reversed = True
doc.recompute()

body6 = doc.addObject("PartDesign::Body", "Body005")
body6.BaseFeature = body5
boolean = body.newObject("PartDesign::Boolean", "Boolean")
boolean.Type = "Cut"
boolean.addObjects([body6])
doc.recompute()

body7 = doc.addObject("PartDesign::Body", "Body006")
body7.BaseFeature = body5
boolean2 = body2.newObject("PartDesign::Boolean", "Boolean001")
boolean2.Type = "Cut"
boolean2.addObjects([body7])
doc.recompute()
body3.AllowCompound = True
doc.recompute()

body8 = doc.addObject("PartDesign::Body", "Body007")
body8.BaseFeature = body5
boolean3 = body3.newObject("PartDesign::Boolean", "Boolean002")
boolean3.Type = "Cut"
boolean3.addObjects([body8])
doc.recompute()
body4.AllowCompound = True
doc.recompute()

boolean4 = body4.newObject("PartDesign::Boolean", "Boolean003")
boolean4.Type = "Cut"
boolean4.addObjects([body5])
body3.AllowCompound = True
doc.recompute()

boolean5 = body3.newObject("PartDesign::Boolean", "Boolean004")
boolean5.Type = "Fuse"
boolean5.addObjects([body4])

sketch6 = body3.newObject("Sketcher::SketchObject", "Sketch005")
sketch6.AttachmentSupport = (doc.getObject("XZ_Plane002"), [""])
sketch6.MapMode = "FlatFace"
sketch6.addGeometry([
    Part.LineSegment(V(-0.89, -9.75, 0), V(-1, -9.81, 0)),
    Part.LineSegment(V(-1, -9.81, 0), V(-1, 9.81, 0)),
    Part.LineSegment(V(-1, 9.81, 0), V(-0.89, 9.75, 0)),
    Part.ArcOfCircle(Part.Circle(V(-1.39, 8.88, 0), V(0, 0, 1), 1), math.radians(0), math.radians(60)),
    Part.LineSegment(V(-0.39, 8.88, 0), V(-0.39, -8.88, 0)),
    Part.ArcOfCircle(Part.Circle(V(-1.39, -8.88, 0), V(0, 0, 1), 1), math.radians(-60), math.radians(0)),
    Part.LineSegment(V(0.39, -8.88, 0), V(0.39, 8.88, 0)),
    Part.ArcOfCircle(Part.Circle(V(1.39, 8.88, 0), V(0, 0, 1), 1), math.radians(120), math.radians(180)),
    Part.LineSegment(V(0.89, 9.75, 0), V(1, 9.81, 0)),
    Part.LineSegment(V(1, 9.81, 0), V(1, -9.81, 0)),
    Part.LineSegment(V(1, -9.81, 0), V(0.89, -9.75, 0)),
    Part.ArcOfCircle(Part.Circle(V(1.39, -8.88, 0), V(0, 0, 1), 1), math.radians(180), math.radians(240)),
    Part.LineSegment(V(-0.42, -37.04, 0), V(-1, -37.48, 0)),
    Part.LineSegment(V(-1, -37.48, 0), V(-1, -27.48, 0)),
    Part.LineSegment(V(-1, -27.48, 0), V(-0.54, -26.37, 0)),
    Part.ArcOfCircle(Part.Circle(V(-2.39, -25.61, 0), V(0, 0, 1), 2), math.radians(-22), math.radians(0)),
    Part.LineSegment(V(-0.39, -25.6, 0), V(-0.4, -21.03, 0)),
    Part.ArcOfCircle(Part.Circle(V(1.6, -21.03, 0), V(0, 0, 1), 2), math.radians(127), math.radians(180)),
    Part.LineSegment(V(0.4, -19.43, 0), V(1, -18.98, 0)),
    Part.LineSegment(V(1, -18.98, 0), V(1, -26, 0)),
    Part.LineSegment(V(1, -26, 0), V(0.54, -27.11, 0)),
    Part.ArcOfCircle(Part.Circle(V(2.39, -27.88, 0), V(0, 0, 1), 2), math.radians(158), math.radians(180)),
    Part.LineSegment(V(0.39, -27.88, 0), V(0.39, -35.44, 0)),
    Part.ArcOfCircle(Part.Circle(V(-1.61, -35.44, 0), V(0, 0, 1), 2), math.radians(-53), math.radians(0)),
    Part.LineSegment(V(-0.23, 19.56, 0), V(-1, 18.98, 0)),
    Part.LineSegment(V(-1, 18.98, 0), V(-1, 25.98, 0)),
    Part.LineSegment(V(-1, 25.98, 0), V(-0.54, 27.12, 0)),
    Part.ArcOfCircle(Part.Circle(V(-2.4, 27.87, 0), V(0, 0, 1), 2), math.radians(-22), math.radians(0)),
    Part.LineSegment(V(-0.4, 27.87, 0), V(-0.4, 35.44, 0)),
    Part.ArcOfCircle(Part.Circle(V(1.6, 35.44, 0), V(0, 0, 1), 2), math.radians(127), math.radians(180)),
    Part.LineSegment(V(0.41, 37.04, 0), V(1, 37.48, 0)),
    Part.LineSegment(V(1, 37.48, 0), V(1, 27.48, 0)),
    Part.LineSegment(V(1, 27.48, 0), V(0.65, 26.25, 0)),
    Part.ArcOfCircle(Part.Circle(V(2.57, 25.7, 0), V(0, 0, 1), 2), math.radians(164.15), math.radians(180)),
    Part.LineSegment(V(0.57, 25.7, 0), V(0.57, 21.16, 0)),
    Part.ArcOfCircle(Part.Circle(V(-1.43, 21.16, 0), V(0, 0, 1), 2), math.radians(-53), math.radians(0)),
], False)
sketch6.addConstraint([
    Sketcher.Constraint("Coincident", 0, 2, 1, 1),
    Sketcher.Constraint("Coincident", 1, 2, 2, 1),
    Sketcher.Constraint("Tangent", 2, 2, 3, 2),
    Sketcher.Constraint("Tangent", 3, 1, 4, 1),
    Sketcher.Constraint("Tangent", 4, 2, 5, 2),
    Sketcher.Constraint("Tangent", 5, 1, 0, 1),
    Sketcher.Constraint("Tangent", 6, 2, 7, 2),
    Sketcher.Constraint("Tangent", 7, 1, 8, 1),
    Sketcher.Constraint("Coincident", 8, 2, 9, 1),
    Sketcher.Constraint("Coincident", 9, 2, 10, 1),
    Sketcher.Constraint("Tangent", 10, 2, 11, 2),
    Sketcher.Constraint("Tangent", 11, 1, 6, 1),
    Sketcher.Constraint("Coincident", 12, 2, 13, 1),
    Sketcher.Constraint("Coincident", 13, 2, 14, 1),
    Sketcher.Constraint("Tangent", 14, 2, 15, 1),
    Sketcher.Constraint("Tangent", 15, 2, 16, 1),
    Sketcher.Constraint("Tangent", 16, 2, 17, 2),
    Sketcher.Constraint("Tangent", 17, 1, 18, 1),
    Sketcher.Constraint("Coincident", 18, 2, 19, 1),
    Sketcher.Constraint("Coincident", 19, 2, 20, 1),
    Sketcher.Constraint("Tangent", 20, 2, 21, 1),
    Sketcher.Constraint("Tangent", 21, 2, 22, 1),
    Sketcher.Constraint("Tangent", 22, 2, 23, 2),
    Sketcher.Constraint("Tangent", 23, 1, 12, 1),
    Sketcher.Constraint("Coincident", 24, 2, 25, 1),
    Sketcher.Constraint("Coincident", 25, 2, 26, 1),
    Sketcher.Constraint("Tangent", 26, 2, 27, 1),
    Sketcher.Constraint("Tangent", 27, 2, 28, 1),
    Sketcher.Constraint("Tangent", 28, 2, 29, 2),
    Sketcher.Constraint("Tangent", 29, 1, 30, 1),
    Sketcher.Constraint("Coincident", 30, 2, 31, 1),
    Sketcher.Constraint("Coincident", 31, 2, 32, 1),
    Sketcher.Constraint("Tangent", 32, 2, 33, 1),
    Sketcher.Constraint("Tangent", 33, 2, 34, 1),
    Sketcher.Constraint("Tangent", 34, 2, 35, 2),
    Sketcher.Constraint("Tangent", 35, 1, 24, 1),
    Sketcher.Constraint("Vertical", 1),
    Sketcher.Constraint("Vertical", 4),
    Sketcher.Constraint("Vertical", 6),
    Sketcher.Constraint("Vertical", 9),
    Sketcher.Constraint("Vertical", 13),
    Sketcher.Constraint("Vertical", 19),
    Sketcher.Constraint("Vertical", 22),
    Sketcher.Constraint("Vertical", 25),
    Sketcher.Constraint("Vertical", 28),
    Sketcher.Constraint("Vertical", 31),
    Sketcher.Constraint("Vertical", 34),
    Sketcher.Constraint("Equal", 3, 5),
    Sketcher.Constraint("Equal", 5, 7),
    Sketcher.Constraint("Equal", 7, 11),
    Sketcher.Constraint("Equal", 15, 17),
    Sketcher.Constraint("Equal", 17, 21),
    Sketcher.Constraint("Equal", 21, 23),
    Sketcher.Constraint("Equal", 23, 27),
    Sketcher.Constraint("Equal", 27, 29),
    Sketcher.Constraint("Equal", 29, 33),
    Sketcher.Constraint("Equal", 33, 35),
    Sketcher.Constraint("Symmetric", 5, 3, 7, 3, -1, 1),
    Sketcher.Constraint("Symmetric", 0, 2, 8, 2, -1, 1),
    Sketcher.Constraint("Symmetric", 2, 2, 10, 2, -1, 1),
    Sketcher.Constraint("Symmetric", 18, 2, 24, 2, -1, 1),
    Sketcher.Constraint("Symmetric", 12, 2, 30, 2, -1, 1),
    Sketcher.Constraint("Symmetric", 2, 2, 7, 1, -2),
    Sketcher.Constraint("Parallel", 12, 18),
    Sketcher.Constraint("Parallel", 14, 20),
    Sketcher.Constraint("Parallel", 18, 24),
    Sketcher.Constraint("Parallel", 24, 30),
    Sketcher.Constraint("Vertical", 1, 2, 12, 2),
    Sketcher.Constraint("Vertical", 9, 2, 18, 2),
    Sketcher.Constraint("Vertical", 11, 1, 21, 2),
    Sketcher.Constraint("Equal", 13, 31),
    Sketcher.Constraint("Radius", 3, 1.0),
    Sketcher.Constraint("Radius", 15, 2.0),
    Sketcher.Constraint("DistanceY", 13, 1, 13, 2, 10.0),
    Sketcher.Constraint("DistanceY", 25, 1, 25, 2, 7.0),
    Sketcher.Constraint("Angle", 0, Q("-150 deg")),
    Sketcher.Constraint("DistanceX", 0, 2, -1, 1, 1.0),
    Sketcher.Constraint("DistanceY", 25, 2, 31, 2, 1.5),
    Sketcher.Constraint("DistanceX", 16, 2, 17, 1, 0.803998),
    Sketcher.Constraint("Distance", 18, 0.744799),
    Sketcher.Constraint("DistanceY", 1, 1, 1, 2, 19.629909),
    Sketcher.Constraint("DistanceX", 27, 3, 7, 3, 3.7851),
    Sketcher.Constraint("DistanceY", 14, 2, 16, 2, 5.337402),
    Sketcher.Constraint("DistanceY", 32, 2, 31, 2, 1.232201),
    Sketcher.Constraint("Distance", 24, 0.960919),
    Sketcher.Constraint("Distance", 26, 1.22956),
    Sketcher.Constraint("DistanceY", 4, 2, 4, 1, 17.769445),
    Sketcher.Constraint("DistanceY", 19, 2, 19, 1, 7.021374),
    Sketcher.Constraint("DistanceY", 22, 2, 22, 1, 7.563625),
    Sketcher.Constraint("DistanceY", 15, 3, -1, 1, 25.607419),
])
pad6 = body3.newObject("PartDesign::Pad", "Pad005")
pad6.Profile = sketch6
pad6.Length = 1
pad6.Reversed = True
body.AllowCompound = True
doc.recompute()

boolean6 = body.newObject("PartDesign::Boolean", "Boolean005")
boolean6.Type = "Fuse"
boolean6.addObjects([body2])
doc.recompute()

boolean7 = body.newObject("PartDesign::Boolean", "Boolean006")
boolean7.Type = "Fuse"
boolean7.addObjects([body3])

sketch7 = body.newObject("Sketcher::SketchObject", "Sketch006")
sketch7.AttachmentSupport = (doc.getObject("XZ_Plane"), [""])
sketch7.MapMode = "FlatFace"
sketch7.AttachmentOffset = App.Placement(V(0, 0, -1), App.Rotation())
sketch7.addGeometry([
    Part.LineSegment(V(1, -37.5, 0), V(1, -27.5, 0)),
    Part.LineSegment(V(1, -27.5, 0), V(2, -27.5, 0)),
    Part.LineSegment(V(2, -27.5, 0), V(2, -37.5, 0)),
    Part.LineSegment(V(2, -37.5, 0), V(1, -37.5, 0)),
    Part.LineSegment(V(-2, -26, 0), V(-2, -19, 0)),
    Part.LineSegment(V(-2, -19, 0), V(-1, -19, 0)),
    Part.LineSegment(V(-1, -19, 0), V(-1, -26, 0)),
    Part.LineSegment(V(-1, -26, 0), V(-2, -26, 0)),
    Part.LineSegment(V(1, 19, 0), V(1, 26, 0)),
    Part.LineSegment(V(1, 26, 0), V(2, 26, 0)),
    Part.LineSegment(V(2, 26, 0), V(2, 19, 0)),
    Part.LineSegment(V(2, 19, 0), V(1, 19, 0)),
    Part.LineSegment(V(-2, 27.5, 0), V(-2, 37.5, 0)),
    Part.LineSegment(V(-2, 37.5, 0), V(-1, 37.5, 0)),
    Part.LineSegment(V(-1, 37.5, 0), V(-1, 27.5, 0)),
    Part.LineSegment(V(-1, 27.5, 0), V(-2, 27.5, 0)),
], False)
sketch7.addConstraint([
    Sketcher.Constraint("Coincident", 0, 2, 1, 1),
    Sketcher.Constraint("Coincident", 1, 2, 2, 1),
    Sketcher.Constraint("Coincident", 2, 2, 3, 1),
    Sketcher.Constraint("Coincident", 3, 2, 0, 1),
    Sketcher.Constraint("Coincident", 4, 2, 5, 1),
    Sketcher.Constraint("Coincident", 5, 2, 6, 1),
    Sketcher.Constraint("Coincident", 6, 2, 7, 1),
    Sketcher.Constraint("Coincident", 7, 2, 4, 1),
    Sketcher.Constraint("Coincident", 8, 2, 9, 1),
    Sketcher.Constraint("Coincident", 9, 2, 10, 1),
    Sketcher.Constraint("Coincident", 10, 2, 11, 1),
    Sketcher.Constraint("Coincident", 11, 2, 8, 1),
    Sketcher.Constraint("Coincident", 12, 2, 13, 1),
    Sketcher.Constraint("Coincident", 13, 2, 14, 1),
    Sketcher.Constraint("Coincident", 14, 2, 15, 1),
    Sketcher.Constraint("Coincident", 15, 2, 12, 1),
    Sketcher.Constraint("Vertical", 0),
    Sketcher.Constraint("Horizontal", 1),
    Sketcher.Constraint("Vertical", 2),
    Sketcher.Constraint("Horizontal", 3),
    Sketcher.Constraint("Vertical", 4),
    Sketcher.Constraint("Horizontal", 5),
    Sketcher.Constraint("Vertical", 6),
    Sketcher.Constraint("Horizontal", 7),
    Sketcher.Constraint("Vertical", 8),
    Sketcher.Constraint("Horizontal", 9),
    Sketcher.Constraint("Vertical", 10),
    Sketcher.Constraint("Horizontal", 11),
    Sketcher.Constraint("Vertical", 12),
    Sketcher.Constraint("Horizontal", 13),
    Sketcher.Constraint("Vertical", 14),
    Sketcher.Constraint("Horizontal", 15),
    Sketcher.Constraint("Symmetric", 6, 2, 8, 2, -1, 1),
    Sketcher.Constraint("Symmetric", 4, 2, 10, 2, -1, 1),
    Sketcher.Constraint("Symmetric", 2, 2, 12, 2, -1, 1),
    Sketcher.Constraint("Symmetric", 0, 2, 14, 2, -1, 1),
    Sketcher.Constraint("Vertical", 3, 2, 8, 2),
    Sketcher.Constraint("Vertical", 2, 2, 9, 2),
    Sketcher.Constraint("DistanceX", 1, 1, 1, 2, 1.0),
    Sketcher.Constraint("DistanceY", 0, 1, 0, 2, 10.0),
    Sketcher.Constraint("DistanceY", 4, 1, 4, 2, 7.0),
    Sketcher.Constraint("DistanceX", -1, 1, 0, 2, 1.0),
    Sketcher.Constraint("DistanceY", 0, 2, 4, 2, 8.5),
    Sketcher.Constraint("DistanceY", 0, 2, -1, 1, 27.480762),
])
pad7 = body.newObject("PartDesign::Pad", "Pad006")
pad7.Profile = sketch7
pad7.Length = 0.8
pad7.Reversed = True

sketch8 = body.newObject("Sketcher::SketchObject", "Sketch007")
sketch8.AttachmentSupport = (doc.getObject("XZ_Plane"), [""])
sketch8.MapMode = "FlatFace"
sketch8.AttachmentOffset = App.Placement(V(0, 0, -1.3), App.Rotation())
sketch8.addGeometry([
    Part.LineSegment(V(1, -37.5, 0), V(-0.2, -36.8, 0)),
    Part.LineSegment(V(-0.2, -36.8, 0), V(-0.2, -27.7, 0)),
    Part.LineSegment(V(-0.2, -27.7, 0), V(-2, -26, 0)),
    Part.LineSegment(V(-2, -26, 0), V(-1, -26, 0)),
    Part.LineSegment(V(-1, -26, 0), V(-1, -19, 0)),
    Part.LineSegment(V(-1, -19, 0), V(0.2, -19.6, 0)),
    Part.LineSegment(V(0.2, -19.6, 0), V(0.2, -24.8, 0)),
    Part.LineSegment(V(0.2, -24.8, 0), V(2, -27.5, 0)),
    Part.LineSegment(V(2, -27.5, 0), V(1, -27.5, 0)),
    Part.LineSegment(V(1, -27.5, 0), V(1, -37.5, 0)),
    Part.LineSegment(V(1, 19, 0), V(-0.2, 19.6, 0)),
    Part.LineSegment(V(-0.2, 19.6, 0), V(-0.2, 25.7, 0)),
    Part.LineSegment(V(-0.2, 25.7, 0), V(-2, 27.5, 0)),
    Part.LineSegment(V(-2, 27.5, 0), V(-1, 27.5, 0)),
    Part.LineSegment(V(-1, 27.5, 0), V(-1, 37.5, 0)),
    Part.LineSegment(V(-1, 37.5, 0), V(0.2, 36.8, 0)),
    Part.LineSegment(V(0.2, 36.8, 0), V(0.2, 27.7, 0)),
    Part.LineSegment(V(0.2, 27.7, 0), V(2, 26, 0)),
    Part.LineSegment(V(2, 26, 0), V(1, 26, 0)),
    Part.LineSegment(V(1, 26, 0), V(1, 19, 0)),
], False)
sketch8.addConstraint([
    Sketcher.Constraint("Coincident", 0, 2, 1, 1),
    Sketcher.Constraint("Coincident", 1, 2, 2, 1),
    Sketcher.Constraint("Coincident", 2, 2, 3, 1),
    Sketcher.Constraint("Coincident", 3, 2, 4, 1),
    Sketcher.Constraint("Coincident", 4, 2, 5, 1),
    Sketcher.Constraint("Coincident", 5, 2, 6, 1),
    Sketcher.Constraint("Coincident", 6, 2, 7, 1),
    Sketcher.Constraint("Coincident", 7, 2, 8, 1),
    Sketcher.Constraint("Coincident", 8, 2, 9, 1),
    Sketcher.Constraint("Coincident", 9, 2, 0, 1),
    Sketcher.Constraint("Coincident", 10, 2, 11, 1),
    Sketcher.Constraint("Coincident", 11, 2, 12, 1),
    Sketcher.Constraint("Coincident", 12, 2, 13, 1),
    Sketcher.Constraint("Coincident", 13, 2, 14, 1),
    Sketcher.Constraint("Coincident", 14, 2, 15, 1),
    Sketcher.Constraint("Coincident", 15, 2, 16, 1),
    Sketcher.Constraint("Coincident", 16, 2, 17, 1),
    Sketcher.Constraint("Coincident", 17, 2, 18, 1),
    Sketcher.Constraint("Coincident", 18, 2, 19, 1),
    Sketcher.Constraint("Coincident", 19, 2, 10, 1),
    Sketcher.Constraint("Vertical", 1),
    Sketcher.Constraint("Horizontal", 3),
    Sketcher.Constraint("Vertical", 4),
    Sketcher.Constraint("Vertical", 6),
    Sketcher.Constraint("Horizontal", 8),
    Sketcher.Constraint("Vertical", 9),
    Sketcher.Constraint("Vertical", 11),
    Sketcher.Constraint("Horizontal", 13),
    Sketcher.Constraint("Vertical", 14),
    Sketcher.Constraint("Vertical", 16),
    Sketcher.Constraint("Horizontal", 18),
    Sketcher.Constraint("Vertical", 19),
    Sketcher.Constraint("Symmetric", 7, 2, 12, 2, -1, 1),
    Sketcher.Constraint("Symmetric", 9, 2, 14, 2, -1, 1),
    Sketcher.Constraint("Symmetric", 2, 2, 17, 2, -1, 1),
    Sketcher.Constraint("Symmetric", 4, 2, 19, 2, -1, 1),
    Sketcher.Constraint("Parallel", 0, 5),
    Sketcher.Constraint("Parallel", 5, 10),
    Sketcher.Constraint("Parallel", 2, 12),
    Sketcher.Constraint("Parallel", 10, 15),
    Sketcher.Constraint("Parallel", 12, 17),
    Sketcher.Constraint("Vertical", 2, 2, 12, 2),
    Sketcher.Constraint("Vertical", 4, 2, 13, 2),
    Sketcher.Constraint("DistanceX", 3, 1, 3, 2, 1.0),
    Sketcher.Constraint("DistanceY", 4, 1, 4, 2, 7.0),
    Sketcher.Constraint("DistanceY", 9, 2, 9, 1, 10.0),
    Sketcher.Constraint("DistanceX", 2, 2, -1, 1, 2.0),
    Sketcher.Constraint("DistanceY", 7, 2, 3, 2, 1.5),
    Sketcher.Constraint("Distance", 0, 1.344802),
    Sketcher.Constraint("DistanceY", 11, 1, 11, 2, 6.123359),
    Sketcher.Constraint("Distance", 5, 1.342431),
    Sketcher.Constraint("Distance", 17, 2.509739),
    Sketcher.Constraint("DistanceY", 1, 1, 1, 2, 9.132093),
    Sketcher.Constraint("DistanceY", 6, 2, 6, 1, 5.188625),
    Sketcher.Constraint("DistanceY", 16, 2, 16, 1, 9.131557),
    Sketcher.Constraint("DistanceY", 0, 2, -1, 1, 36.841911),
])
pad8 = body.newObject("PartDesign::Pad", "Pad007")
pad8.Profile = sketch8
pad8.Length = 0.5
pad8.Reversed = True

doc.recompute()
